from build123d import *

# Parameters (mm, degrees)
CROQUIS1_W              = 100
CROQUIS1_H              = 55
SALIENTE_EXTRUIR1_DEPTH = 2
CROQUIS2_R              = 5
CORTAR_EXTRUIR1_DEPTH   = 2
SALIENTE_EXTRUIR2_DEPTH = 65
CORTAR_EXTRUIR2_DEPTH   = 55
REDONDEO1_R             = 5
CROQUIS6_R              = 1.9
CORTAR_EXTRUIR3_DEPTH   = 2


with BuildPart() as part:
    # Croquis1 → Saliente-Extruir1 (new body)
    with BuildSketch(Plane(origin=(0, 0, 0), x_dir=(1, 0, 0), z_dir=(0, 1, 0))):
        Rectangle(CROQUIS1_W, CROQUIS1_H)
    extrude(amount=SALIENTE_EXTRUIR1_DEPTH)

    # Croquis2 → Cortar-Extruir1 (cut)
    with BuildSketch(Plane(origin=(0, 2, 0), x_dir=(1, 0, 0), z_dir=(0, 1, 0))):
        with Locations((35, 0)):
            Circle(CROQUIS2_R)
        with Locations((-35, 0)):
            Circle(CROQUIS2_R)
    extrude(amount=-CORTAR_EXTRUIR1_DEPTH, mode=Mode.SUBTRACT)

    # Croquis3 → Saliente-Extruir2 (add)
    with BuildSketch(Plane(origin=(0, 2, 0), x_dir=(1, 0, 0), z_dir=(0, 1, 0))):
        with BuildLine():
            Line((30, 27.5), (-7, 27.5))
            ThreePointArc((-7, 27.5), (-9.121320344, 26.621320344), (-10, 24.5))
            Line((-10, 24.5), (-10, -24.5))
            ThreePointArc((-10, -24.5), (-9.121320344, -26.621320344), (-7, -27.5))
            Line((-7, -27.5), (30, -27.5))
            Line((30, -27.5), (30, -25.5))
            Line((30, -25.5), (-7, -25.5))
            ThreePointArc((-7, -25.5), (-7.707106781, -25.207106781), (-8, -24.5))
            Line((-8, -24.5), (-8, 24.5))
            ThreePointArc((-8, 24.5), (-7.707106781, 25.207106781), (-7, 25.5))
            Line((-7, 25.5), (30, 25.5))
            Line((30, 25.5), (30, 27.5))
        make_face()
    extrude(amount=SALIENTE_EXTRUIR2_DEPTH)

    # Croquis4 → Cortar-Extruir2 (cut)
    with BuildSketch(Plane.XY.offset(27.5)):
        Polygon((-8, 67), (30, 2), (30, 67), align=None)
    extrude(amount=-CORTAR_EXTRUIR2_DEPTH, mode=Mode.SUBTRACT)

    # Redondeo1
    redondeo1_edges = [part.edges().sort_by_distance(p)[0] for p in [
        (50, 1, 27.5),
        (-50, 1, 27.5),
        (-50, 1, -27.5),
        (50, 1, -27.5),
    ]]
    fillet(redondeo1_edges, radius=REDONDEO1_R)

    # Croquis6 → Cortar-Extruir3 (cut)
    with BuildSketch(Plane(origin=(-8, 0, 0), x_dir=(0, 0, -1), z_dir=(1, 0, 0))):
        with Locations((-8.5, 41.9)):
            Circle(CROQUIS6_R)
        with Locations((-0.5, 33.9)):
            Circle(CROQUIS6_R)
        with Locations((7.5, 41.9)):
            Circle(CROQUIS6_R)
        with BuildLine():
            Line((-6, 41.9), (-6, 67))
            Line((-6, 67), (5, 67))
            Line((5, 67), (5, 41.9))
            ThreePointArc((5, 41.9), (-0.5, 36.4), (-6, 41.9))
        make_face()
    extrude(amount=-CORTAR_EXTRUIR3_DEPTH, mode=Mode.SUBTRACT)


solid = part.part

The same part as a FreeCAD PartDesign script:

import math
import FreeCAD as App
import Part
import Sketcher
Q = App.Units.Quantity


def edges_at(feature, points):
    """Names of the edges that pass closest to the given points."""
    edges = feature.Shape.Edges
    near = lambda p: min(range(len(edges)), key=lambda i: edges[i].distToShape(Part.Vertex(*p))[0])
    return sorted({f"Edge{near(p) + 1}" for p in points})

doc = App.newDocument("Part")
params = doc.addObject("Spreadsheet::Sheet", "Params")
for row, (alias, value) in enumerate([
    ("sketch1_width", "100 mm"),
    ("sketch1_height", "55 mm"),
    ("pad1_length", "2 mm"),
    ("sketch2_diameter", "10 mm"),
    ("pocket1_length", "2 mm"),
    ("sketch3_radius", "3 mm"),
    ("sketch3_radius2", "1 mm"),
    ("sketch3_width", "37 mm"),
    ("sketch3_height", "49 mm"),
    ("pad2_length", "65 mm"),
    ("sketch4_width", "38 mm"),
    ("sketch4_height", "65 mm"),
    ("pocket2_length", "55 mm"),
    ("fillet_radius", "5 mm"),
    ("sketch5_diameter", "3.8 mm"),
    ("sketch5_radius", "5.5 mm"),
    ("sketch5_width", "25.1 mm"),
    ("pocket3_length", "2 mm"),
], start=1):
    params.set(f"A{row}", alias)
    params.set(f"B{row}", "=" + value)
    params.setAlias(f"B{row}", alias)

body = doc.addObject("PartDesign::Body", "Body")

# Sketch on XZ plane
sketch1 = body.newObject("Sketcher::SketchObject", "Sketch")
sketch1.AttachmentSupport = (doc.getObject("XZ_Plane"), [""])
sketch1.MapMode = "FlatFace"
sketch1.addGeometry(Part.LineSegment(App.Vector(-50, -28, 0), App.Vector(-50, 28, 0)), False)
sketch1.addGeometry(Part.LineSegment(App.Vector(-50, 28, 0), App.Vector(50, 28, 0)), False)
sketch1.addGeometry(Part.LineSegment(App.Vector(50, 28, 0), App.Vector(50, -28, 0)), False)
sketch1.addGeometry(Part.LineSegment(App.Vector(50, -28, 0), App.Vector(-50, -28, 0)), False)
sketch1.addConstraint(Sketcher.Constraint("Coincident", 0, 2, 1, 1))
sketch1.addConstraint(Sketcher.Constraint("Coincident", 1, 2, 2, 1))
sketch1.addConstraint(Sketcher.Constraint("Coincident", 2, 2, 3, 1))
sketch1.addConstraint(Sketcher.Constraint("Coincident", 3, 2, 0, 1))
sketch1.addConstraint(Sketcher.Constraint("Vertical", 0))
sketch1.addConstraint(Sketcher.Constraint("Horizontal", 1))
sketch1.addConstraint(Sketcher.Constraint("Vertical", 2))
sketch1.addConstraint(Sketcher.Constraint("Horizontal", 3))
sketch1.addConstraint(Sketcher.Constraint("Symmetric", 0, 2, 2, 2, -1, 1))
sketch1.addConstraint(Sketcher.Constraint("DistanceX", 1, 1, 1, 2, Q("100 mm")))
sketch1.addConstraint(Sketcher.Constraint("DistanceY", 0, 1, 0, 2, Q("55 mm")))
sketch1.setExpression("Constraints[9]", "Params.sketch1_width")
sketch1.setExpression("Constraints[10]", "Params.sketch1_height")
pad1 = body.newObject("PartDesign::Pad", "Pad")
pad1.Profile = sketch1
pad1.setExpression("Length", "Params.pad1_length")
pad1.Reversed = True

# Sketch on XZ plane
sketch2 = body.newObject("Sketcher::SketchObject", "Sketch001")
sketch2.AttachmentSupport = (doc.getObject("XZ_Plane"), [""])
sketch2.MapMode = "FlatFace"
sketch2.AttachmentOffset = App.Placement(App.Vector(0, 0, -2), App.Rotation())
sketch2.addGeometry(Part.Circle(App.Vector(35, 0, 0), App.Vector(0, 0, 1), 5), False)
sketch2.addGeometry(Part.Circle(App.Vector(-35, 0, 0), App.Vector(0, 0, 1), 5), False)
sketch2.addConstraint(Sketcher.Constraint("Equal", 0, 1))
sketch2.addConstraint(Sketcher.Constraint("Symmetric", 0, 3, 1, 3, -1, 1))
sketch2.addConstraint(Sketcher.Constraint("PointOnObject", 0, 3, -1))
sketch2.addConstraint(Sketcher.Constraint("Diameter", 0, Q("10 mm")))
sketch2.addConstraint(Sketcher.Constraint("DistanceX", -1, 1, 0, 3, Q("35 mm")))
sketch2.setExpression("Constraints[3]", "Params.sketch2_diameter")
pocket1 = body.newObject("PartDesign::Pocket", "Pocket")
pocket1.Profile = sketch2
pocket1.setExpression("Length", "Params.pocket1_length")
pocket1.Reversed = True

# Sketch on XZ plane
sketch3 = body.newObject("Sketcher::SketchObject", "Sketch002")
sketch3.AttachmentSupport = (doc.getObject("XZ_Plane"), [""])
sketch3.MapMode = "FlatFace"
sketch3.AttachmentOffset = App.Placement(App.Vector(0, 0, -2), App.Rotation())
sketch3.addGeometry(Part.LineSegment(App.Vector(30, -27.5, 0), App.Vector(-7, -27.5, 0)), False)
sketch3.addGeometry(Part.ArcOfCircle(Part.Circle(App.Vector(-7, -24.5, 0), App.Vector(0, 0, 1), 3), math.radians(180), math.radians(270)), False)
sketch3.addGeometry(Part.LineSegment(App.Vector(-10, -24.5, 0), App.Vector(-10, 24.5, 0)), False)
sketch3.addGeometry(Part.ArcOfCircle(Part.Circle(App.Vector(-7, 24.5, 0), App.Vector(0, 0, 1), 3), math.radians(90), math.radians(180)), False)
sketch3.addGeometry(Part.LineSegment(App.Vector(-7, 27.5, 0), App.Vector(30, 27.5, 0)), False)
sketch3.addGeometry(Part.LineSegment(App.Vector(30, 27.5, 0), App.Vector(30, 25.5, 0)), False)
sketch3.addGeometry(Part.LineSegment(App.Vector(30, 25.5, 0), App.Vector(-7, 25.5, 0)), False)
sketch3.addGeometry(Part.ArcOfCircle(Part.Circle(App.Vector(-7, 24.5, 0), App.Vector(0, 0, 1), 1), math.radians(90), math.radians(180)), False)
sketch3.addGeometry(Part.LineSegment(App.Vector(-8, 24.5, 0), App.Vector(-8, -24.5, 0)), False)
sketch3.addGeometry(Part.ArcOfCircle(Part.Circle(App.Vector(-7, -24.5, 0), App.Vector(0, 0, 1), 1), math.radians(-180), math.radians(-90)), False)
sketch3.addGeometry(Part.LineSegment(App.Vector(-7, -25.5, 0), App.Vector(30, -25.5, 0)), False)
sketch3.addGeometry(Part.LineSegment(App.Vector(30, -25.5, 0), App.Vector(30, -27.5, 0)), False)
sketch3.addConstraint(Sketcher.Constraint("Tangent", 0, 2, 1, 2))
sketch3.addConstraint(Sketcher.Constraint("Tangent", 1, 1, 2, 1))
sketch3.addConstraint(Sketcher.Constraint("Tangent", 2, 2, 3, 2))
sketch3.addConstraint(Sketcher.Constraint("Tangent", 3, 1, 4, 1))
sketch3.addConstraint(Sketcher.Constraint("Coincident", 4, 2, 5, 1))
sketch3.addConstraint(Sketcher.Constraint("Coincident", 5, 2, 6, 1))
sketch3.addConstraint(Sketcher.Constraint("Tangent", 6, 2, 7, 1))
sketch3.addConstraint(Sketcher.Constraint("Tangent", 7, 2, 8, 1))
sketch3.addConstraint(Sketcher.Constraint("Tangent", 8, 2, 9, 1))
sketch3.addConstraint(Sketcher.Constraint("Tangent", 9, 2, 10, 1))
sketch3.addConstraint(Sketcher.Constraint("Coincident", 10, 2, 11, 1))
sketch3.addConstraint(Sketcher.Constraint("Coincident", 11, 2, 0, 1))
sketch3.addConstraint(Sketcher.Constraint("Horizontal", 0))
sketch3.addConstraint(Sketcher.Constraint("Vertical", 2))
sketch3.addConstraint(Sketcher.Constraint("Horizontal", 4))
sketch3.addConstraint(Sketcher.Constraint("Vertical", 5))
sketch3.addConstraint(Sketcher.Constraint("Horizontal", 6))
sketch3.addConstraint(Sketcher.Constraint("Vertical", 8))
sketch3.addConstraint(Sketcher.Constraint("Horizontal", 10))
sketch3.addConstraint(Sketcher.Constraint("Vertical", 11))
sketch3.addConstraint(Sketcher.Constraint("Coincident", 7, 3, 3, 3))
sketch3.addConstraint(Sketcher.Constraint("Coincident", 9, 3, 1, 3))
sketch3.addConstraint(Sketcher.Constraint("Equal", 1, 3))
sketch3.addConstraint(Sketcher.Constraint("Symmetric", 5, 2, 10, 2, -1))
sketch3.addConstraint(Sketcher.Constraint("Radius", 1, Q("3 mm")))
sketch3.addConstraint(Sketcher.Constraint("Radius", 7, Q("1 mm")))
sketch3.addConstraint(Sketcher.Constraint("DistanceX", 0, 2, 0, 1, Q("37 mm")))
sketch3.addConstraint(Sketcher.Constraint("DistanceY", 2, 1, 2, 2, Q("49 mm")))
sketch3.addConstraint(Sketcher.Constraint("DistanceX", 1, 3, -1, 1, Q("7 mm")))
sketch3.setExpression("Constraints[24]", "Params.sketch3_radius")
sketch3.setExpression("Constraints[25]", "Params.sketch3_radius2")
sketch3.setExpression("Constraints[26]", "Params.sketch3_width")
sketch3.setExpression("Constraints[27]", "Params.sketch3_height")
pad2 = body.newObject("PartDesign::Pad", "Pad001")
pad2.Profile = sketch3
pad2.setExpression("Length", "Params.pad2_length")
pad2.Reversed = True

# Sketch on XY plane
sketch4 = body.newObject("Sketcher::SketchObject", "Sketch003")
sketch4.AttachmentSupport = (doc.getObject("XY_Plane"), [""])
sketch4.MapMode = "FlatFace"
sketch4.AttachmentOffset = App.Placement(App.Vector(0, 0, 27.5), App.Rotation())
sketch4.addGeometry(Part.LineSegment(App.Vector(-8, 67, 0), App.Vector(30, 2, 0)), False)
sketch4.addGeometry(Part.LineSegment(App.Vector(30, 2, 0), App.Vector(30, 67, 0)), False)
sketch4.addGeometry(Part.LineSegment(App.Vector(30, 67, 0), App.Vector(-8, 67, 0)), False)
sketch4.addConstraint(Sketcher.Constraint("Coincident", 0, 2, 1, 1))
sketch4.addConstraint(Sketcher.Constraint("Coincident", 1, 2, 2, 1))
sketch4.addConstraint(Sketcher.Constraint("Coincident", 2, 2, 0, 1))
sketch4.addConstraint(Sketcher.Constraint("Vertical", 1))
sketch4.addConstraint(Sketcher.Constraint("Horizontal", 2))
sketch4.addConstraint(Sketcher.Constraint("DistanceX", 2, 2, 2, 1, Q("38 mm")))
sketch4.addConstraint(Sketcher.Constraint("DistanceY", 1, 1, 1, 2, Q("65 mm")))
sketch4.addConstraint(Sketcher.Constraint("DistanceX", -1, 1, 0, 2, Q("30 mm")))
sketch4.addConstraint(Sketcher.Constraint("DistanceY", -1, 1, 0, 2, Q("2 mm")))
sketch4.setExpression("Constraints[5]", "Params.sketch4_width")
sketch4.setExpression("Constraints[6]", "Params.sketch4_height")
pocket2 = body.newObject("PartDesign::Pocket", "Pocket001")
pocket2.Profile = sketch4
pocket2.setExpression("Length", "Params.pocket2_length")
doc.recompute()

fillet = body.newObject("PartDesign::Fillet", "Fillet")
fillet.Base = (pocket2, edges_at(pocket2, [
    (50, 1, 27.5),
    (-50, 1, 27.5),
    (-50, 1, -27.5),
    (50, 1, -27.5),
]))
fillet.setExpression("Radius", "Params.fillet_radius")

# Sketch on YZ plane
sketch5 = body.newObject("Sketcher::SketchObject", "Sketch004")
sketch5.AttachmentSupport = (doc.getObject("YZ_Plane"), [""])
sketch5.MapMode = "FlatFace"
sketch5.AttachmentOffset = App.Placement(App.Vector(0, 0, -8), App.Rotation())
sketch5.addGeometry(Part.Circle(App.Vector(41.9, 8.5, 0), App.Vector(0, 0, 1), 1.9), False)
sketch5.addGeometry(Part.Circle(App.Vector(33.9, 0.5, 0), App.Vector(0, 0, 1), 1.9), False)
sketch5.addGeometry(Part.Circle(App.Vector(41.9, -7.5, 0), App.Vector(0, 0, 1), 1.9), False)
sketch5.addGeometry(Part.LineSegment(App.Vector(67, 6, 0), App.Vector(41.9, 6, 0)), False)
sketch5.addGeometry(Part.ArcOfCircle(Part.Circle(App.Vector(41.9, 0.5, 0), App.Vector(0, 0, 1), 5.5), math.radians(90), math.radians(270)), False)
sketch5.addGeometry(Part.LineSegment(App.Vector(41.9, -5, 0), App.Vector(67, -5, 0)), False)
sketch5.addGeometry(Part.LineSegment(App.Vector(67, -5, 0), App.Vector(67, 6, 0)), False)
sketch5.addConstraint(Sketcher.Constraint("Tangent", 3, 2, 4, 1))
sketch5.addConstraint(Sketcher.Constraint("Tangent", 4, 2, 5, 1))
sketch5.addConstraint(Sketcher.Constraint("Coincident", 5, 2, 6, 1))
sketch5.addConstraint(Sketcher.Constraint("Coincident", 6, 2, 3, 1))
sketch5.addConstraint(Sketcher.Constraint("Horizontal", 3))
sketch5.addConstraint(Sketcher.Constraint("Horizontal", 5))
sketch5.addConstraint(Sketcher.Constraint("Vertical", 6))
sketch5.addConstraint(Sketcher.Constraint("Equal", 0, 1))
sketch5.addConstraint(Sketcher.Constraint("Equal", 1, 2))
sketch5.addConstraint(Sketcher.Constraint("Horizontal", 1, 3, 4, 3))
sketch5.addConstraint(Sketcher.Constraint("Vertical", 0, 3, 2, 3))
sketch5.addConstraint(Sketcher.Constraint("Vertical", 2, 3, 4, 3))
sketch5.addConstraint(Sketcher.Constraint("Diameter", 0, Q("3.8 mm")))
sketch5.addConstraint(Sketcher.Constraint("Radius", 4, Q("5.5 mm")))
sketch5.addConstraint(Sketcher.Constraint("DistanceX", 3, 2, 3, 1, Q("25.1 mm")))
sketch5.addConstraint(Sketcher.Constraint("DistanceY", -1, 1, 3, 2, Q("6 mm")))
sketch5.addConstraint(Sketcher.Constraint("DistanceX", -1, 1, 5, 2, Q("67 mm")))
sketch5.addConstraint(Sketcher.Constraint("DistanceX", 1, 3, 0, 3, Q("8 mm")))
sketch5.addConstraint(Sketcher.Constraint("DistanceY", 1, 3, 0, 3, Q("8 mm")))
sketch5.addConstraint(Sketcher.Constraint("DistanceY", 2, 3, 1, 3, Q("8 mm")))
sketch5.setExpression("Constraints[12]", "Params.sketch5_diameter")
sketch5.setExpression("Constraints[13]", "Params.sketch5_radius")
sketch5.setExpression("Constraints[14]", "Params.sketch5_width")
pocket3 = body.newObject("PartDesign::Pocket", "Pocket002")
pocket3.Profile = sketch5
pocket3.setExpression("Length", "Params.pocket3_length")

doc.recompute()
